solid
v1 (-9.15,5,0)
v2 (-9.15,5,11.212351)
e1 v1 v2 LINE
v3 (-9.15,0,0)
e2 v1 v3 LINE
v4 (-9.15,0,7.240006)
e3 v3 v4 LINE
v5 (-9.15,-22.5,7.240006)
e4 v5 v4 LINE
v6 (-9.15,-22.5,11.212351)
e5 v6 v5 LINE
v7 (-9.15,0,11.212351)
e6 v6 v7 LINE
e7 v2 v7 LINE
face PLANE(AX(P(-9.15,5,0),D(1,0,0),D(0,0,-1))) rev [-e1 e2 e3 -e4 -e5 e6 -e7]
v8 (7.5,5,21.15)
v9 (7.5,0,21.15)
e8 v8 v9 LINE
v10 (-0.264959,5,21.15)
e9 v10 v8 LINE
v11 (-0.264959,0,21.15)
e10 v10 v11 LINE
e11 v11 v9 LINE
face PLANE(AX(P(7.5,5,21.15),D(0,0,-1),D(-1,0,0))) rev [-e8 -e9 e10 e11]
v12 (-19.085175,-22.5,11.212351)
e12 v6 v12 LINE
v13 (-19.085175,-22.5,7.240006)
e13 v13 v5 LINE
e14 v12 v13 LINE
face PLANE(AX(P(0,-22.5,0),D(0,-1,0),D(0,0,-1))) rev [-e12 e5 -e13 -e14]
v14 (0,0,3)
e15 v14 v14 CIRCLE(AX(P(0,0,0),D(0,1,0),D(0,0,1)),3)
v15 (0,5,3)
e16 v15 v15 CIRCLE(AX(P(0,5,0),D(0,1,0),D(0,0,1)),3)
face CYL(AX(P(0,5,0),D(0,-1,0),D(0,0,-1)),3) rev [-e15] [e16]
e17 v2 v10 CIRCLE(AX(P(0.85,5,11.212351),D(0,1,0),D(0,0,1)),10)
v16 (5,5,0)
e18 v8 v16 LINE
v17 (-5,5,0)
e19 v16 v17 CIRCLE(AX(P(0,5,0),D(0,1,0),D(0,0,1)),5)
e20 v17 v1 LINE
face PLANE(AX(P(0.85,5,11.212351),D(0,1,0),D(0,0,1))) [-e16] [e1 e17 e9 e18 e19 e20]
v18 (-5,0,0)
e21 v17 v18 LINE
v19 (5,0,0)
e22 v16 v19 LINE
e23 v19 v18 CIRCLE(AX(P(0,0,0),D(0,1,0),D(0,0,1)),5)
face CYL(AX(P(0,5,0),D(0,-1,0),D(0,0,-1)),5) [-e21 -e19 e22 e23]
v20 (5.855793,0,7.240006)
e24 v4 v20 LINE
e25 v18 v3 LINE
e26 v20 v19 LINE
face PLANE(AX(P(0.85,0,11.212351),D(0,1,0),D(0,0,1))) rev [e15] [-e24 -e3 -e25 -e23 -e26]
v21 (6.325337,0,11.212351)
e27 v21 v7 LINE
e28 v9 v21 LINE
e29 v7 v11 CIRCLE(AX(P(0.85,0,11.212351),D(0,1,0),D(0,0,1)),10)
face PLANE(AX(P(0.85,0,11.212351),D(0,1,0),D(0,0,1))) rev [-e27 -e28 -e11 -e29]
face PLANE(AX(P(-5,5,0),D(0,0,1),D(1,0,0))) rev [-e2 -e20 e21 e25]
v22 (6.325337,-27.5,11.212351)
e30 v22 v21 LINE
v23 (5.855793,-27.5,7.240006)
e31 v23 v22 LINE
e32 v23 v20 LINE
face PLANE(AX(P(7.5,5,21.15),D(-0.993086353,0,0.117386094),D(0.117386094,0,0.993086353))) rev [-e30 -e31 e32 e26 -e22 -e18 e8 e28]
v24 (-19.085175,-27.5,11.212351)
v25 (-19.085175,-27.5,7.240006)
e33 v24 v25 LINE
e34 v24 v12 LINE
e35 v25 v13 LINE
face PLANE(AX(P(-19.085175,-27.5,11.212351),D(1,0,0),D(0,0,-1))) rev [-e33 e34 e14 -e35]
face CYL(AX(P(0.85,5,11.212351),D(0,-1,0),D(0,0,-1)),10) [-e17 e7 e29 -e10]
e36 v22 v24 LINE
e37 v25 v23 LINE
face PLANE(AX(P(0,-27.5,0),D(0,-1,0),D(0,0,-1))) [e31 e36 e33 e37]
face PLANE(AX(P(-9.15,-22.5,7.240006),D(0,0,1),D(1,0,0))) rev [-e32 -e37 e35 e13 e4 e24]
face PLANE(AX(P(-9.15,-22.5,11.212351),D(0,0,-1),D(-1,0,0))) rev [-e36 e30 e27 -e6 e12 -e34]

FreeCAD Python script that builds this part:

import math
import FreeCAD as App
import Part
import Sketcher

V = App.Vector


def add_polygon(sketch, points):
    """Adds a closed chain of lines whose ends are joined by coincident constraints."""
    first, n = sketch.GeometryCount, len(points)
    for a, b in zip(points, points[1:] + points[:1]):
        sketch.addGeometry(Part.LineSegment(App.Vector(*a, 0), App.Vector(*b, 0)), False)
    for i in range(n):
        sketch.addConstraint(Sketcher.Constraint("Coincident", first + i, 2, first + (i + 1) % n, 1))

doc = App.newDocument("Part")
body = doc.addObject("PartDesign::Body", "Body")

sketch1 = body.newObject("Sketcher::SketchObject", "Sketch")
sketch1.AttachmentSupport = (doc.getObject("XZ_Plane"), [""])
sketch1.MapMode = "FlatFace"
sketch1.addGeometry([
    Part.LineSegment(V(7.5, 21.1, 0), V(5, 0, 0)),
    Part.ArcOfCircle(Part.Circle(V(0, 0, 0), V(0, 0, 1), 5), math.radians(180), math.radians(360)),
    Part.LineSegment(V(-5, 0, 0), V(-9.2, 0, 0)),
    Part.LineSegment(V(-9.2, 0, 0), V(-9.2, 11.2, 0)),
    Part.ArcOfCircle(Part.Circle(V(0.8, 11.2, 0), V(0, 0, 1), 10), math.radians(96), math.radians(180)),
    Part.LineSegment(V(-0.3, 21.1, 0), V(7.5, 21.1, 0)),
    Part.Circle(V(0, 0, 0), V(0, 0, 1), 3),
], False)
sketch1.addConstraint([
    Sketcher.Constraint("Coincident", 0, 2, 1, 2),
    Sketcher.Constraint("Coincident", 1, 1, 2, 1),
    Sketcher.Constraint("Coincident", 2, 2, 3, 1),
    Sketcher.Constraint("Tangent", 3, 2, 4, 2),
    Sketcher.Constraint("Coincident", 4, 1, 5, 1),
    Sketcher.Constraint("Coincident", 5, 2, 0, 1),
    Sketcher.Constraint("Horizontal", 2),
    Sketcher.Constraint("Vertical", 3),
    Sketcher.Constraint("Horizontal", 5),
    Sketcher.Constraint("Coincident", 1, 3, -1, 1),
    Sketcher.Constraint("Coincident", 6, 3, -1, 1),
    Sketcher.Constraint("PointOnObject", 0, 2, -1),
    Sketcher.Constraint("PointOnObject", 1, 1, -1),
    Sketcher.Constraint("Diameter", 6, 6.0),
    Sketcher.Constraint("Radius", 1, 5.0),
    Sketcher.Constraint("Radius", 4, 10.0),
    Sketcher.Constraint("DistanceX", 2, 2, 2, 1, 4.15),
    Sketcher.Constraint("DistanceX", -1, 1, 5, 2, 7.5),
    Sketcher.Constraint("DistanceY", -1, 1, 4, 1, 21.15),
    Sketcher.Constraint("DistanceX", 5, 1, 5, 2, 7.764959),
])
pad1 = body.newObject("PartDesign::Pad", "Pad")
pad1.Profile = sketch1
pad1.Length = 5
pad1.Reversed = True

sketch2 = body.newObject("Sketcher::SketchObject", "Sketch001")
sketch2.AttachmentSupport = (doc.getObject("XZ_Plane"), [""])
sketch2.MapMode = "FlatFace"
add_polygon(sketch2, [(6.3, 11.2), (-9.2, 11.2), (-9.2, 7.2), (5.9, 7.2)])
sketch2.addConstraint([
    Sketcher.Constraint("Horizontal", 0),
    Sketcher.Constraint("Vertical", 1),
    Sketcher.Constraint("Horizontal", 2),
    Sketcher.Constraint("Distance", 3, 4.0),
    Sketcher.Constraint("DistanceX", 0, 2, -1, 1, 9.15),
    Sketcher.Constraint("DistanceX", 0, 2, 0, 1, 15.475337),
    Sketcher.Constraint("DistanceX", 2, 1, 2, 2, 15.005793),
    Sketcher.Constraint("DistanceY", -1, 1, 0, 2, 11.212351),
])
pad2 = body.newObject("PartDesign::Pad", "Pad001")
pad2.Profile = sketch2
pad2.Length = 22.5

sketch3 = body.newObject("Sketcher::SketchObject", "Sketch002")
sketch3.AttachmentSupport = (doc.getObject("XZ_Plane"), [""])
sketch3.MapMode = "FlatFace"
sketch3.AttachmentOffset = App.Placement(V(0, 0, 22.5), App.Rotation())
add_polygon(sketch3, [(5.9, 7.2), (6.3, 11.2), (-19.1, 11.2), (-19.1, 7.2)])
sketch3.addConstraint([
    Sketcher.Constraint("Horizontal", 1),
    Sketcher.Constraint("Vertical", 2),
    Sketcher.Constraint("Horizontal", 3),
    Sketcher.Constraint("Distance", 0, 4.0),
    Sketcher.Constraint("DistanceX", 1, 2, 1, 1, 25.410512),
    Sketcher.Constraint("DistanceX", 3, 1, 3, 2, 24.940968),
    Sketcher.Constraint("DistanceY", -1, 1, 0, 2, 11.212351),
    Sketcher.Constraint("DistanceX", -1, 1, 0, 2, 6.325337),
])
pad3 = body.newObject("PartDesign::Pad", "Pad002")
pad3.Profile = sketch3
pad3.Length = 5

doc.recompute()
